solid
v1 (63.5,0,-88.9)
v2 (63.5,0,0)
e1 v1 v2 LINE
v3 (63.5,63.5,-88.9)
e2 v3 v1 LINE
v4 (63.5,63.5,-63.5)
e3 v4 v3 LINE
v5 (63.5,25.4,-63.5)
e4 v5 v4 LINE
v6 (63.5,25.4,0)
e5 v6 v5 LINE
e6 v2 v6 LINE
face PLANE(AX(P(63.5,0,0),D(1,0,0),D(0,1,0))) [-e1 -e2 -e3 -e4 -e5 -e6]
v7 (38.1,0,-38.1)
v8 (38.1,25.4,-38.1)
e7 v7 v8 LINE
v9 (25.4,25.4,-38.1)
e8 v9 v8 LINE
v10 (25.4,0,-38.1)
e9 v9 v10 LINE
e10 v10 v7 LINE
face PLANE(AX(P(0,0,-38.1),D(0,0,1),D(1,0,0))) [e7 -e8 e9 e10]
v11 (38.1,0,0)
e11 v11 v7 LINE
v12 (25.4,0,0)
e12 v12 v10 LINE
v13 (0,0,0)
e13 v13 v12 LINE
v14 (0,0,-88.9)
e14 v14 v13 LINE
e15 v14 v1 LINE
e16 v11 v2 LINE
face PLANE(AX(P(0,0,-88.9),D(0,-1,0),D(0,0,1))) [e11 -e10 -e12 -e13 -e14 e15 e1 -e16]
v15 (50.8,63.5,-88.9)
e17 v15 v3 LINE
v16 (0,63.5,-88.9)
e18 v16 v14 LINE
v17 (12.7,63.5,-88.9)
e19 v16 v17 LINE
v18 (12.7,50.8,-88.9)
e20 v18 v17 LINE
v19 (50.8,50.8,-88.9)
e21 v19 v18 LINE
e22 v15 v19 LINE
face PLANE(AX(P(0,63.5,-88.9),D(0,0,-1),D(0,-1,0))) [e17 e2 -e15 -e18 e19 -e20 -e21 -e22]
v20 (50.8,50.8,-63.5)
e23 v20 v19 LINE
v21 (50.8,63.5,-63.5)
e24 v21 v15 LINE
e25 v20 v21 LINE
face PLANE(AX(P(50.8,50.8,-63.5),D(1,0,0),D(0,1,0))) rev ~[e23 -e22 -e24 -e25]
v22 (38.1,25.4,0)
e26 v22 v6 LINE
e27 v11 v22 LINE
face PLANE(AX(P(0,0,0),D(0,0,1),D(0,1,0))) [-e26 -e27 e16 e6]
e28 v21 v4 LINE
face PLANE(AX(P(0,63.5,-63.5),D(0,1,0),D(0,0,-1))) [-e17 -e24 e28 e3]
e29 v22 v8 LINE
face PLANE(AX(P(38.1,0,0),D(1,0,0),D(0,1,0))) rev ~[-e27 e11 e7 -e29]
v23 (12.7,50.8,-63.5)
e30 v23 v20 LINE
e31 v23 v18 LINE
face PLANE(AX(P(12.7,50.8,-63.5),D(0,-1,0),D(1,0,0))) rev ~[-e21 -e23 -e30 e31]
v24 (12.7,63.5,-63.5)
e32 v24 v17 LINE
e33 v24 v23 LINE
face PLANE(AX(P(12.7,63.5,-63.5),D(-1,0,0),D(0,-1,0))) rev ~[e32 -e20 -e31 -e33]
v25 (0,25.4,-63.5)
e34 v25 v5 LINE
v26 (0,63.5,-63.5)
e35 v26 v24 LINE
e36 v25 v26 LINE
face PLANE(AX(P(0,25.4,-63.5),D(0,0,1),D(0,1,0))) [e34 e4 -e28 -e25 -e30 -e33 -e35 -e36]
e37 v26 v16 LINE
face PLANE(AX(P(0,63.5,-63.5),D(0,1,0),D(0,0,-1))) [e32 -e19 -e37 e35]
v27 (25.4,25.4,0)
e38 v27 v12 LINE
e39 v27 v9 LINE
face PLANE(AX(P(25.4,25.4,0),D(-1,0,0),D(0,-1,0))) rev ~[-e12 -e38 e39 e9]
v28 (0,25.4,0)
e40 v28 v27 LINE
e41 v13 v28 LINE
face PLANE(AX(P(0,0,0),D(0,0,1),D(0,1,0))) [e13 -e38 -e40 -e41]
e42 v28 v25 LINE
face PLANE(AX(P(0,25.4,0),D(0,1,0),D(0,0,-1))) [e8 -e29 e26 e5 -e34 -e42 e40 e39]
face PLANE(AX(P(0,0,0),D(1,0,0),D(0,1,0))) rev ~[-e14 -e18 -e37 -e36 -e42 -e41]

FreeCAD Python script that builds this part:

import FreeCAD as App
import Part
import Sketcher

V = App.Vector
Q = App.Units.Quantity

doc = App.newDocument("Part")
body = doc.addObject("PartDesign::Body", "Body")

# Sketch on YZ plane
sketch1 = doc.addObject("Sketcher::SketchObject", "Sketch")
body.addObject(sketch1)
sketch1.AttachmentSupport = (doc.YZ_Plane, [""])
sketch1.MapMode = "FlatFace"
sketch1.addGeometry([
    Part.LineSegment(V(25, 0, 0), V(0, 0, 0)),  # 0
    Part.LineSegment(V(0, 0, 0), V(0, -89, 0)),  # 1
    Part.LineSegment(V(0, -89, 0), V(64, -89, 0)),  # 2
    Part.LineSegment(V(64, -89, 0), V(64, -64, 0)),  # 3
    Part.LineSegment(V(64, -64, 0), V(25, -64, 0)),  # 4
    Part.LineSegment(V(25, -64, 0), V(25, 0, 0)),  # 5
], False)
sketch1.addConstraint([
    Sketcher.Constraint("Coincident", 0, 2, 1, 1),
    Sketcher.Constraint("Coincident", 1, 2, 2, 1),
    Sketcher.Constraint("Coincident", 2, 2, 3, 1),
    Sketcher.Constraint("Coincident", 3, 2, 4, 1),
    Sketcher.Constraint("Coincident", 4, 2, 5, 1),
    Sketcher.Constraint("Coincident", 5, 2, 0, 1),
    Sketcher.Constraint("Horizontal", 0),
    Sketcher.Constraint("Vertical", 1),
    Sketcher.Constraint("Horizontal", 2),
    Sketcher.Constraint("Vertical", 3),
    Sketcher.Constraint("Horizontal", 4),
    Sketcher.Constraint("Vertical", 5),
    Sketcher.Constraint("Coincident", 0, 2, -1, 1),
    Sketcher.Constraint("Equal", 0, 3),
    Sketcher.Constraint("Equal", 2, 5),
    Sketcher.Constraint("DistanceX", 0, 2, 0, 1, Q("1 in")),
    Sketcher.Constraint("DistanceX", 2, 1, 2, 2, Q("2.5 in")),
])
pad1 = doc.addObject("PartDesign::Pad", "Pad")
body.addObject(pad1)
pad1.Profile = sketch1
pad1.Length = Q("2.5 in")

# Sketch on XY plane
sketch2 = doc.addObject("Sketcher::SketchObject", "Sketch001")
body.addObject(sketch2)
sketch2.AttachmentSupport = (doc.XY_Plane, [""])
sketch2.MapMode = "FlatFace"
sketch2.AttachmentOffset = App.Placement(V(0, 0, -2.5 * 25.4), App.Rotation())
sketch2.addGeometry([
    Part.LineSegment(V(51, 64, 0), V(13, 64, 0)),
    Part.LineSegment(V(13, 64, 0), V(13, 51, 0)),
    Part.LineSegment(V(13, 51, 0), V(51, 51, 0)),
    Part.LineSegment(V(51, 51, 0), V(51, 64, 0)),
], False)
sketch2.addConstraint([
    Sketcher.Constraint("Coincident", 0, 2, 1, 1),
    Sketcher.Constraint("Coincident", 1, 2, 2, 1),
    Sketcher.Constraint("Coincident", 2, 2, 3, 1),
    Sketcher.Constraint("Coincident", 3, 2, 0, 1),
    Sketcher.Constraint("Horizontal", 0),
    Sketcher.Constraint("Vertical", 1),
    Sketcher.Constraint("Horizontal", 2),
    Sketcher.Constraint("Vertical", 3),
    Sketcher.Constraint("DistanceX", 0, 2, 0, 1, Q("1.5 in")),
    Sketcher.Constraint("DistanceY", 1, 2, 1, 1, Q("0.5 in")),
    Sketcher.Constraint("DistanceX", -1, 1, 0, 2, Q("0.5 in")),
    Sketcher.Constraint("DistanceY", -1, 1, 1, 2, Q("2 in")),
])
pocket1 = doc.addObject("PartDesign::Pocket", "Pocket")
body.addObject(pocket1)
pocket1.Profile = sketch2
pocket1.Length = Q("1.5625 in")

# Sketch on XY plane
sketch3 = doc.addObject("Sketcher::SketchObject", "Sketch002")
body.addObject(sketch3)
sketch3.AttachmentSupport = (doc.XY_Plane, [""])
sketch3.MapMode = "FlatFace"
sketch3.addGeometry([
    Part.LineSegment(V(38, 25, 0), V(25, 25, 0)),
    Part.LineSegment(V(25, 25, 0), V(25, 0, 0)),
    Part.LineSegment(V(25, 0, 0), V(38, 0, 0)),
    Part.LineSegment(V(38, 0, 0), V(38, 25, 0)),
], False)
sketch3.addConstraint([
    Sketcher.Constraint("Coincident", 0, 2, 1, 1),
    Sketcher.Constraint("Coincident", 1, 2, 2, 1),
    Sketcher.Constraint("Coincident", 2, 2, 3, 1),
    Sketcher.Constraint("Coincident", 3, 2, 0, 1),
    Sketcher.Constraint("Horizontal", 0),
    Sketcher.Constraint("Vertical", 1),
    Sketcher.Constraint("Horizontal", 2),
    Sketcher.Constraint("Vertical", 3),
    Sketcher.Constraint("PointOnObject", 1, 2, -1),
    Sketcher.Constraint("DistanceY", 1, 2, 1, 1, Q("1 in")),
    Sketcher.Constraint("DistanceX", 0, 2, 0, 1, Q("0.5 in")),
    Sketcher.Constraint("DistanceX", -1, 1, 0, 2, Q("1 in")),
])
pocket2 = doc.addObject("PartDesign::Pocket", "Pocket001")
body.addObject(pocket2)
pocket2.Profile = sketch3
pocket2.Length = Q("1.5 in")

doc.recompute()
